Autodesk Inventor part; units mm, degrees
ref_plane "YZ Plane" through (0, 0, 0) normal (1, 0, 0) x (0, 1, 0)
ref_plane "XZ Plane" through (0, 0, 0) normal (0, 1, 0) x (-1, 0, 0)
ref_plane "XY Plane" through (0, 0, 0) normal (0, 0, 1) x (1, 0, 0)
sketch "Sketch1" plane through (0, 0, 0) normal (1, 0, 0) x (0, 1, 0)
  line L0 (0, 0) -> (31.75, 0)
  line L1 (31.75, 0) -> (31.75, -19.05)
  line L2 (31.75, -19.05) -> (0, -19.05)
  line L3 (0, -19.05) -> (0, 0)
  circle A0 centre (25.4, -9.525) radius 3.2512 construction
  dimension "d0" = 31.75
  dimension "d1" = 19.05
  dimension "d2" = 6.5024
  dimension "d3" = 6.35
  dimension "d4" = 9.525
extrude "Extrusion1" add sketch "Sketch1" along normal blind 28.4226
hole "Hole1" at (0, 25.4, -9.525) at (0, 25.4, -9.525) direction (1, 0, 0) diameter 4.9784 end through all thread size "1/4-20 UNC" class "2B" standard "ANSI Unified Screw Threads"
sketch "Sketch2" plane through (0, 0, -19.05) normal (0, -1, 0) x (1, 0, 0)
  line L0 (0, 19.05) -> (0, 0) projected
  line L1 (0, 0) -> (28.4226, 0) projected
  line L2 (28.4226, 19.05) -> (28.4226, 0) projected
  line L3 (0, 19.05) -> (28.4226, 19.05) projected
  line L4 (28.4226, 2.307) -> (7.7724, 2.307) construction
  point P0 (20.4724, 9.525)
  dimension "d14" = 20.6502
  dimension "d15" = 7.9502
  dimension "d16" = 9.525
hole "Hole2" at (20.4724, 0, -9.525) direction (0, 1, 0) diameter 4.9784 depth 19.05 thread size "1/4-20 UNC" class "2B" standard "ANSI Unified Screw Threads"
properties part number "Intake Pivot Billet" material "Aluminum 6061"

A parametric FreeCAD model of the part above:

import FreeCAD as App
import Part
import Sketcher
Q = App.Units.Quantity

doc = App.newDocument("Part")
body = doc.addObject("PartDesign::Body", "Body")

sketch1 = body.newObject("Sketcher::SketchObject", "Sketch")
sketch1.AttachmentSupport = (doc.getObject("YZ_Plane"), [""])
sketch1.MapMode = "FlatFace"
sketch1.addGeometry(Part.LineSegment(App.Vector(32, 0, 0), App.Vector(0, 0, 0)), False)
sketch1.addGeometry(Part.LineSegment(App.Vector(0, 0, 0), App.Vector(0, -19, 0)), False)
sketch1.addGeometry(Part.LineSegment(App.Vector(0, -19, 0), App.Vector(32, -19, 0)), False)
sketch1.addGeometry(Part.LineSegment(App.Vector(32, -19, 0), App.Vector(32, 0, 0)), False)
sketch1.addConstraint(Sketcher.Constraint("Coincident", 0, 2, 1, 1))
sketch1.addConstraint(Sketcher.Constraint("Coincident", 1, 2, 2, 1))
sketch1.addConstraint(Sketcher.Constraint("Coincident", 2, 2, 3, 1))
sketch1.addConstraint(Sketcher.Constraint("Coincident", 3, 2, 0, 1))
sketch1.addConstraint(Sketcher.Constraint("Horizontal", 0))
sketch1.addConstraint(Sketcher.Constraint("Vertical", 1))
sketch1.addConstraint(Sketcher.Constraint("Horizontal", 2))
sketch1.addConstraint(Sketcher.Constraint("Vertical", 3))
sketch1.addConstraint(Sketcher.Constraint("Coincident", 0, 2, -1, 1))
sketch1.addConstraint(Sketcher.Constraint("DistanceX", 0, 2, 0, 1, Q("1.25 in")))
sketch1.addConstraint(Sketcher.Constraint("DistanceY", 1, 2, 1, 1, Q("0.75 in")))
pad1 = body.newObject("PartDesign::Pad", "Pad")
pad1.Profile = sketch1
pad1.Length = Q("1.119 in")

sketch2 = body.newObject("Sketcher::SketchObject", "Sketch001")
sketch2.AttachmentSupport = (doc.getObject("YZ_Plane"), [""])
sketch2.MapMode = "FlatFace"
sketch2.addGeometry(Part.Circle(App.Vector(25.4, -9.5, 0), App.Vector(0, 0, 1), 2.5), False)
sketch2.addGeometry(Part.Circle(App.Vector(25.4, -9.5, 0), App.Vector(0, 0, 1), 2.5), False)
sketch2.addConstraint(Sketcher.Constraint("Coincident", 1, 3, 0, 3))
sketch2.addConstraint(Sketcher.Constraint("Equal", 0, 1))
sketch2.addConstraint(Sketcher.Constraint("Diameter", 0, Q("0.196 in")))
sketch2.addConstraint(Sketcher.Constraint("DistanceX", -1, 1, 0, 3, Q("1 in")))
sketch2.addConstraint(Sketcher.Constraint("DistanceY", 0, 3, -1, 1, Q("0.375 in")))
doc.recompute()
hole = body.newObject("PartDesign::Hole", "Hole")
hole.Profile = sketch2
hole.ThreadType = "None"
hole.Diameter = Q("0.196 in")
hole.DepthType = "ThroughAll"
hole.Reversed = True

sketch3 = body.newObject("Sketcher::SketchObject", "Sketch002")
sketch3.AttachmentSupport = (doc.getObject("XZ_Plane"), [""])
sketch3.MapMode = "FlatFace"
sketch3.addGeometry(Part.Circle(App.Vector(20.5, -9.5, 0), App.Vector(0, 0, 1), 2.5), False)
sketch3.addConstraint(Sketcher.Constraint("Diameter", 0, Q("0.196 in")))
sketch3.addConstraint(Sketcher.Constraint("DistanceX", -1, 1, 0, 3, Q("0.806 in")))
sketch3.addConstraint(Sketcher.Constraint("DistanceY", 0, 3, -1, 1, Q("0.375 in")))
doc.recompute()
hole2 = body.newObject("PartDesign::Hole", "Hole001")
hole2.Profile = sketch3
hole2.ThreadType = "None"
hole2.Diameter = Q("0.196 in")
hole2.DepthType = "Dimension"
hole2.Depth = Q("0.75 in")
hole2.DrillPoint = "Flat"

doc.recompute()
